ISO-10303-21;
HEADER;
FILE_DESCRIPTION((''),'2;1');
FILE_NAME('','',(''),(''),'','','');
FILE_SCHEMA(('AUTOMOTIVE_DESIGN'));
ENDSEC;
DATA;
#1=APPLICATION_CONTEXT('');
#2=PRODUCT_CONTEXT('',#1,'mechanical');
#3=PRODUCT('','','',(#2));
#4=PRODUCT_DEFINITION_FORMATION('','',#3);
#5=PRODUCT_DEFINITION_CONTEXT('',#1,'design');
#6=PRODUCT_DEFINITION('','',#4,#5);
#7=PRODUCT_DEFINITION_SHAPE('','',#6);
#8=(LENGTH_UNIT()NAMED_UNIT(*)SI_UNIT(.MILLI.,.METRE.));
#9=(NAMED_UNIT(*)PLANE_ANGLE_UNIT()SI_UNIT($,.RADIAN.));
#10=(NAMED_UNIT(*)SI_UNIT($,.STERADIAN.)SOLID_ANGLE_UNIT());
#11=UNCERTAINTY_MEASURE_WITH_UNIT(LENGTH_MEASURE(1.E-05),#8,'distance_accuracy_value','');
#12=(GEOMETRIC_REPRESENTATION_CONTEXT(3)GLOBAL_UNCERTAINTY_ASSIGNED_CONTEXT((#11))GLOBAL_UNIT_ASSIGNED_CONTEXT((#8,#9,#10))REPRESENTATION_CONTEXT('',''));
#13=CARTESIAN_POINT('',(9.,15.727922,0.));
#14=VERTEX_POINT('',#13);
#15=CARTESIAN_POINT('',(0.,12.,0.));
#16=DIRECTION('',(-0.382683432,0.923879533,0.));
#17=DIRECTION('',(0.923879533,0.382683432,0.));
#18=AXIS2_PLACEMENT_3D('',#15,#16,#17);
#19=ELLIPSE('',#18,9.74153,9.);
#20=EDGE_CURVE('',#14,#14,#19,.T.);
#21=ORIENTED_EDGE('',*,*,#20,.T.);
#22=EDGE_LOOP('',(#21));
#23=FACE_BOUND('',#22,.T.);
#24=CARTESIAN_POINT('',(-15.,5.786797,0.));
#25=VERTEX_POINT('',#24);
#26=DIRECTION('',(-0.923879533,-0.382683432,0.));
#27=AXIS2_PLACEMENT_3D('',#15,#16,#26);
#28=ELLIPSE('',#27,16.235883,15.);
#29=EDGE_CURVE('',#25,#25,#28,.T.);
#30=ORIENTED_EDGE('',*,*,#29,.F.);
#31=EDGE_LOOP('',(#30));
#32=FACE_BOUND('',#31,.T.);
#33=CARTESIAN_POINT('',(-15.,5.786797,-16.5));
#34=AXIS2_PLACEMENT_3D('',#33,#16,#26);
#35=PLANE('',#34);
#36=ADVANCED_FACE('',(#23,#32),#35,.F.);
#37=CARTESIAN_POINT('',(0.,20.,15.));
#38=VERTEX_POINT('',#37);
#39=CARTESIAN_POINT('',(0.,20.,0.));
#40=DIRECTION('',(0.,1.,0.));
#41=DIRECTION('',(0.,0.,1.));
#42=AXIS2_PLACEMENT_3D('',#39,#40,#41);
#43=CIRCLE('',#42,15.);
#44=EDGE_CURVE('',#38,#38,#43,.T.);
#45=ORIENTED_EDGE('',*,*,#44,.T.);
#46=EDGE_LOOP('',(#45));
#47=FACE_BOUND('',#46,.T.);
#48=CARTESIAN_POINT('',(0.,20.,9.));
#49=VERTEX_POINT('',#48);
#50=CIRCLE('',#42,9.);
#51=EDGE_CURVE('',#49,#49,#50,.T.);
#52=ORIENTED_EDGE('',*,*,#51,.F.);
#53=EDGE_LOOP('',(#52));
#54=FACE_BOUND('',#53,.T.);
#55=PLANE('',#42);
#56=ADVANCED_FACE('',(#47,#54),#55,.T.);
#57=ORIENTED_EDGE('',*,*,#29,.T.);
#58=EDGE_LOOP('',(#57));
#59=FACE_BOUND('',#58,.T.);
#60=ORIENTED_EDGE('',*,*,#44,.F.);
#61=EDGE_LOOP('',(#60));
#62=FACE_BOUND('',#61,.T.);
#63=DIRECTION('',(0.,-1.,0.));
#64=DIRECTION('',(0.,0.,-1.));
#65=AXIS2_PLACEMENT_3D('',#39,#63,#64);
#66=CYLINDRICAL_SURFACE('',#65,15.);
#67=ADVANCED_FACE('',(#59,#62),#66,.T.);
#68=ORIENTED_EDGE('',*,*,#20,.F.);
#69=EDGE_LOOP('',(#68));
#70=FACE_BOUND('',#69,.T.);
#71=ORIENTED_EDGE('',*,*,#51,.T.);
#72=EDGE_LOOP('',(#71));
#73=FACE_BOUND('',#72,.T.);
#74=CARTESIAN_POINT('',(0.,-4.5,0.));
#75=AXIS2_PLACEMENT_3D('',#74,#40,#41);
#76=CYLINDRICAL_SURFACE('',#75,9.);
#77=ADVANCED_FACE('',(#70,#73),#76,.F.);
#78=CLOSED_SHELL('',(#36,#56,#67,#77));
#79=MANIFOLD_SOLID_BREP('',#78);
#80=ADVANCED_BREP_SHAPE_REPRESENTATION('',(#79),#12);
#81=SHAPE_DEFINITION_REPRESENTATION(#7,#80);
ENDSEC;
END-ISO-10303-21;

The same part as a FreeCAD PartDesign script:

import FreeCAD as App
import Part
import Sketcher
Q = App.Units.Quantity


def add_polygon(sketch, points):
    """Adds a closed chain of lines whose ends are joined by coincident constraints."""
    first, n = sketch.GeometryCount, len(points)
    for a, b in zip(points, points[1:] + points[:1]):
        sketch.addGeometry(Part.LineSegment(App.Vector(*a, 0), App.Vector(*b, 0)), False)
    for i in range(n):
        sketch.addConstraint(Sketcher.Constraint("Coincident", first + i, 2, first + (i + 1) % n, 1))

doc = App.newDocument("Part")
params = doc.addObject("Spreadsheet::Sheet", "Params")
for row, (alias, value) in enumerate([
    ("sketch1_diameter", "30 mm"),
    ("pad1_length", "20 mm"),
    ("sketch2_width", "30 mm"),
    ("pocket1_length", "33 mm"),
    ("sketch3_diameter", "18 mm"),
    ("pocket2_length", "24.5 mm"),
], start=1):
    params.set(f"A{row}", alias)
    params.set(f"B{row}", "=" + value)
    params.setAlias(f"B{row}", alias)

body = doc.addObject("PartDesign::Body", "Body")

# Sketch on XZ plane
sketch1 = body.newObject("Sketcher::SketchObject", "Sketch")
sketch1.AttachmentSupport = (doc.getObject("XZ_Plane"), [""])
sketch1.MapMode = "FlatFace"
sketch1.addGeometry(Part.Circle(App.Vector(0, 0, 0), App.Vector(0, 0, 1), 15), False)
sketch1.addConstraint([
    Sketcher.Constraint("Coincident", 0, 3, -1, 1),
    Sketcher.Constraint("Diameter", 0, 30.0),
])
sketch1.setExpression("Constraints[1]", "Params.sketch1_diameter")
pad1 = body.newObject("PartDesign::Pad", "Pad")
pad1.Profile = sketch1
pad1.setExpression("Length", "Params.pad1_length")
pad1.Reversed = True

# Sketch on XY plane
sketch2 = body.newObject("Sketcher::SketchObject", "Sketch001")
sketch2.AttachmentSupport = (doc.getObject("XY_Plane"), [""])
sketch2.MapMode = "FlatFace"
add_polygon(sketch2, [(15, 18), (-15, 6), (-15, -10), (15, -10)])  # lines 0-3
sketch2.addConstraint([
    Sketcher.Constraint("Vertical", 1),
    Sketcher.Constraint("Horizontal", 2),
    Sketcher.Constraint("Vertical", 3),
    Sketcher.Constraint("DistanceX", 2, 1, 2, 2, 30.0),
    Sketcher.Constraint("DistanceX", 0, 2, -1, 1, 15.0),
    Sketcher.Constraint("Angle", 0, Q("-157.5 deg")),
    Sketcher.Constraint("DistanceY", 3, 1, 3, 2, 28.590732),
    Sketcher.Constraint("DistanceY", 1, 2, -1, 1, 10.377528),
])
sketch2.setExpression("Constraints[7]", "Params.sketch2_width")
pocket1 = body.newObject("PartDesign::Pocket", "Pocket")
pocket1.Profile = sketch2
pocket1.setExpression("Length", "Params.pocket1_length")
pocket1.Midplane = True

# Sketch on XZ plane
sketch3 = body.newObject("Sketcher::SketchObject", "Sketch002")
sketch3.AttachmentSupport = (doc.getObject("XZ_Plane"), [""])
sketch3.MapMode = "FlatFace"
sketch3.AttachmentOffset = App.Placement(App.Vector(0, 0, -20), App.Rotation())
sketch3.addGeometry(Part.Circle(App.Vector(0, 0, 0), App.Vector(0, 0, 1), 9), False)
sketch3.addConstraint([
    Sketcher.Constraint("Coincident", 0, 3, -1, 1),
    Sketcher.Constraint("Diameter", 0, 18.0),
])
sketch3.setExpression("Constraints[1]", "Params.sketch3_diameter")
pocket2 = body.newObject("PartDesign::Pocket", "Pocket001")
pocket2.Profile = sketch3
pocket2.setExpression("Length", "Params.pocket2_length")
pocket2.Reversed = True

doc.recompute()
